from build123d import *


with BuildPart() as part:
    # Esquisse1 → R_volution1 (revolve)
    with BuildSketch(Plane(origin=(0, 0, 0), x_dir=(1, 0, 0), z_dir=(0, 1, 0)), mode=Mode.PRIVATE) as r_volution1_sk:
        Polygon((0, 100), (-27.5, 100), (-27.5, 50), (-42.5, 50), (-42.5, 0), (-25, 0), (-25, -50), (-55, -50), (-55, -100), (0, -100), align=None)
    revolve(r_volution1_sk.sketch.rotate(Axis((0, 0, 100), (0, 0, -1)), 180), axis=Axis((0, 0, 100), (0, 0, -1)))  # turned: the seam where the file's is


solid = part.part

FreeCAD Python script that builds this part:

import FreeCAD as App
import Part
import Sketcher

V = App.Vector
Q = App.Units.Quantity

doc = App.newDocument("Part")
params = doc.addObject("Spreadsheet::Sheet", "Params")
for row, (alias, value) in enumerate([
    ("sketch1_width", "15 mm"),
    ("sketch1_width2", "30 mm"),
    ("sketch1_width3", "55 mm"),
    ("sketch1_height", "50 mm"),
    ("sketch1_width4", "27.5 mm"),
    ("revolution_angle", "360 deg"),
], start=1):
    params.set(f"A{row}", alias)
    params.set(f"B{row}", "=" + value)
    params.setAlias(f"B{row}", alias)

body = doc.addObject("PartDesign::Body", "Body")

# Sketch on XZ plane
sketch1 = body.newObject("Sketcher::SketchObject", "Sketch")
sketch1.AttachmentSupport = (doc.getObject("XZ_Plane"), [""])
sketch1.MapMode = "FlatFace"
sketch1.addGeometry([
    Part.LineSegment(V(0, -100, 0), V(-28, -100, 0)),  # 0
    Part.LineSegment(V(-28, -100, 0), V(-28, -50, 0)),  # 1
    Part.LineSegment(V(-28, -50, 0), V(-42, -50, 0)),  # 2
    Part.LineSegment(V(-42, -50, 0), V(-42, 0, 0)),  # 3
    Part.LineSegment(V(-42, 0, 0), V(-25, 0, 0)),  # 4
    Part.LineSegment(V(-25, 0, 0), V(-25, 50, 0)),  # 5
    Part.LineSegment(V(-25, 50, 0), V(-55, 50, 0)),  # 6
    Part.LineSegment(V(-55, 50, 0), V(-55, 100, 0)),  # 7
    Part.LineSegment(V(-55, 100, 0), V(0, 100, 0)),  # 8
    Part.LineSegment(V(0, 100, 0), V(0, -100, 0)),  # 9
], False)
sketch1.addConstraint([
    Sketcher.Constraint("Coincident", 0, 2, 1, 1),
    Sketcher.Constraint("Coincident", 1, 2, 2, 1),
    Sketcher.Constraint("Coincident", 2, 2, 3, 1),
    Sketcher.Constraint("Coincident", 3, 2, 4, 1),
    Sketcher.Constraint("Coincident", 4, 2, 5, 1),
    Sketcher.Constraint("Coincident", 5, 2, 6, 1),
    Sketcher.Constraint("Coincident", 6, 2, 7, 1),
    Sketcher.Constraint("Coincident", 7, 2, 8, 1),
    Sketcher.Constraint("Coincident", 8, 2, 9, 1),
    Sketcher.Constraint("Coincident", 9, 2, 0, 1),
    Sketcher.Constraint("Horizontal", 0),
    Sketcher.Constraint("Vertical", 1),
    Sketcher.Constraint("Horizontal", 2),
    Sketcher.Constraint("Vertical", 3),
    Sketcher.Constraint("Horizontal", 4),
    Sketcher.Constraint("Vertical", 5),
    Sketcher.Constraint("Horizontal", 6),
    Sketcher.Constraint("Vertical", 7),
    Sketcher.Constraint("Horizontal", 8),
    Sketcher.Constraint("Vertical", 9),
    Sketcher.Constraint("Symmetric", 8, 2, 9, 2, -1, 1),
    Sketcher.Constraint("PointOnObject", 3, 2, -1),
    Sketcher.Constraint("Equal", 1, 3),
    Sketcher.Constraint("Equal", 3, 5),
    Sketcher.Constraint("DistanceX", 2, 2, 2, 1, Q("15 mm")),
    Sketcher.Constraint("DistanceX", 6, 2, 6, 1, Q("30 mm")),
    Sketcher.Constraint("DistanceX", 8, 1, 8, 2, Q("55 mm")),
    Sketcher.Constraint("DistanceY", 1, 1, 1, 2, Q("50 mm")),
    Sketcher.Constraint("DistanceX", 0, 2, 0, 1, Q("27.5 mm")),
])
sketch1.setExpression("Constraints[24]", "Params.sketch1_width")
sketch1.setExpression("Constraints[25]", "Params.sketch1_width2")
sketch1.setExpression("Constraints[26]", "Params.sketch1_width3")
sketch1.setExpression("Constraints[27]", "Params.sketch1_height")
sketch1.setExpression("Constraints[28]", "Params.sketch1_width4")
revolution = body.newObject("PartDesign::Revolution", "Revolution")
revolution.Profile = sketch1
revolution.ReferenceAxis = (sketch1, ["V_Axis"])
revolution.setExpression("Angle", "Params.revolution_angle")

doc.recompute()
